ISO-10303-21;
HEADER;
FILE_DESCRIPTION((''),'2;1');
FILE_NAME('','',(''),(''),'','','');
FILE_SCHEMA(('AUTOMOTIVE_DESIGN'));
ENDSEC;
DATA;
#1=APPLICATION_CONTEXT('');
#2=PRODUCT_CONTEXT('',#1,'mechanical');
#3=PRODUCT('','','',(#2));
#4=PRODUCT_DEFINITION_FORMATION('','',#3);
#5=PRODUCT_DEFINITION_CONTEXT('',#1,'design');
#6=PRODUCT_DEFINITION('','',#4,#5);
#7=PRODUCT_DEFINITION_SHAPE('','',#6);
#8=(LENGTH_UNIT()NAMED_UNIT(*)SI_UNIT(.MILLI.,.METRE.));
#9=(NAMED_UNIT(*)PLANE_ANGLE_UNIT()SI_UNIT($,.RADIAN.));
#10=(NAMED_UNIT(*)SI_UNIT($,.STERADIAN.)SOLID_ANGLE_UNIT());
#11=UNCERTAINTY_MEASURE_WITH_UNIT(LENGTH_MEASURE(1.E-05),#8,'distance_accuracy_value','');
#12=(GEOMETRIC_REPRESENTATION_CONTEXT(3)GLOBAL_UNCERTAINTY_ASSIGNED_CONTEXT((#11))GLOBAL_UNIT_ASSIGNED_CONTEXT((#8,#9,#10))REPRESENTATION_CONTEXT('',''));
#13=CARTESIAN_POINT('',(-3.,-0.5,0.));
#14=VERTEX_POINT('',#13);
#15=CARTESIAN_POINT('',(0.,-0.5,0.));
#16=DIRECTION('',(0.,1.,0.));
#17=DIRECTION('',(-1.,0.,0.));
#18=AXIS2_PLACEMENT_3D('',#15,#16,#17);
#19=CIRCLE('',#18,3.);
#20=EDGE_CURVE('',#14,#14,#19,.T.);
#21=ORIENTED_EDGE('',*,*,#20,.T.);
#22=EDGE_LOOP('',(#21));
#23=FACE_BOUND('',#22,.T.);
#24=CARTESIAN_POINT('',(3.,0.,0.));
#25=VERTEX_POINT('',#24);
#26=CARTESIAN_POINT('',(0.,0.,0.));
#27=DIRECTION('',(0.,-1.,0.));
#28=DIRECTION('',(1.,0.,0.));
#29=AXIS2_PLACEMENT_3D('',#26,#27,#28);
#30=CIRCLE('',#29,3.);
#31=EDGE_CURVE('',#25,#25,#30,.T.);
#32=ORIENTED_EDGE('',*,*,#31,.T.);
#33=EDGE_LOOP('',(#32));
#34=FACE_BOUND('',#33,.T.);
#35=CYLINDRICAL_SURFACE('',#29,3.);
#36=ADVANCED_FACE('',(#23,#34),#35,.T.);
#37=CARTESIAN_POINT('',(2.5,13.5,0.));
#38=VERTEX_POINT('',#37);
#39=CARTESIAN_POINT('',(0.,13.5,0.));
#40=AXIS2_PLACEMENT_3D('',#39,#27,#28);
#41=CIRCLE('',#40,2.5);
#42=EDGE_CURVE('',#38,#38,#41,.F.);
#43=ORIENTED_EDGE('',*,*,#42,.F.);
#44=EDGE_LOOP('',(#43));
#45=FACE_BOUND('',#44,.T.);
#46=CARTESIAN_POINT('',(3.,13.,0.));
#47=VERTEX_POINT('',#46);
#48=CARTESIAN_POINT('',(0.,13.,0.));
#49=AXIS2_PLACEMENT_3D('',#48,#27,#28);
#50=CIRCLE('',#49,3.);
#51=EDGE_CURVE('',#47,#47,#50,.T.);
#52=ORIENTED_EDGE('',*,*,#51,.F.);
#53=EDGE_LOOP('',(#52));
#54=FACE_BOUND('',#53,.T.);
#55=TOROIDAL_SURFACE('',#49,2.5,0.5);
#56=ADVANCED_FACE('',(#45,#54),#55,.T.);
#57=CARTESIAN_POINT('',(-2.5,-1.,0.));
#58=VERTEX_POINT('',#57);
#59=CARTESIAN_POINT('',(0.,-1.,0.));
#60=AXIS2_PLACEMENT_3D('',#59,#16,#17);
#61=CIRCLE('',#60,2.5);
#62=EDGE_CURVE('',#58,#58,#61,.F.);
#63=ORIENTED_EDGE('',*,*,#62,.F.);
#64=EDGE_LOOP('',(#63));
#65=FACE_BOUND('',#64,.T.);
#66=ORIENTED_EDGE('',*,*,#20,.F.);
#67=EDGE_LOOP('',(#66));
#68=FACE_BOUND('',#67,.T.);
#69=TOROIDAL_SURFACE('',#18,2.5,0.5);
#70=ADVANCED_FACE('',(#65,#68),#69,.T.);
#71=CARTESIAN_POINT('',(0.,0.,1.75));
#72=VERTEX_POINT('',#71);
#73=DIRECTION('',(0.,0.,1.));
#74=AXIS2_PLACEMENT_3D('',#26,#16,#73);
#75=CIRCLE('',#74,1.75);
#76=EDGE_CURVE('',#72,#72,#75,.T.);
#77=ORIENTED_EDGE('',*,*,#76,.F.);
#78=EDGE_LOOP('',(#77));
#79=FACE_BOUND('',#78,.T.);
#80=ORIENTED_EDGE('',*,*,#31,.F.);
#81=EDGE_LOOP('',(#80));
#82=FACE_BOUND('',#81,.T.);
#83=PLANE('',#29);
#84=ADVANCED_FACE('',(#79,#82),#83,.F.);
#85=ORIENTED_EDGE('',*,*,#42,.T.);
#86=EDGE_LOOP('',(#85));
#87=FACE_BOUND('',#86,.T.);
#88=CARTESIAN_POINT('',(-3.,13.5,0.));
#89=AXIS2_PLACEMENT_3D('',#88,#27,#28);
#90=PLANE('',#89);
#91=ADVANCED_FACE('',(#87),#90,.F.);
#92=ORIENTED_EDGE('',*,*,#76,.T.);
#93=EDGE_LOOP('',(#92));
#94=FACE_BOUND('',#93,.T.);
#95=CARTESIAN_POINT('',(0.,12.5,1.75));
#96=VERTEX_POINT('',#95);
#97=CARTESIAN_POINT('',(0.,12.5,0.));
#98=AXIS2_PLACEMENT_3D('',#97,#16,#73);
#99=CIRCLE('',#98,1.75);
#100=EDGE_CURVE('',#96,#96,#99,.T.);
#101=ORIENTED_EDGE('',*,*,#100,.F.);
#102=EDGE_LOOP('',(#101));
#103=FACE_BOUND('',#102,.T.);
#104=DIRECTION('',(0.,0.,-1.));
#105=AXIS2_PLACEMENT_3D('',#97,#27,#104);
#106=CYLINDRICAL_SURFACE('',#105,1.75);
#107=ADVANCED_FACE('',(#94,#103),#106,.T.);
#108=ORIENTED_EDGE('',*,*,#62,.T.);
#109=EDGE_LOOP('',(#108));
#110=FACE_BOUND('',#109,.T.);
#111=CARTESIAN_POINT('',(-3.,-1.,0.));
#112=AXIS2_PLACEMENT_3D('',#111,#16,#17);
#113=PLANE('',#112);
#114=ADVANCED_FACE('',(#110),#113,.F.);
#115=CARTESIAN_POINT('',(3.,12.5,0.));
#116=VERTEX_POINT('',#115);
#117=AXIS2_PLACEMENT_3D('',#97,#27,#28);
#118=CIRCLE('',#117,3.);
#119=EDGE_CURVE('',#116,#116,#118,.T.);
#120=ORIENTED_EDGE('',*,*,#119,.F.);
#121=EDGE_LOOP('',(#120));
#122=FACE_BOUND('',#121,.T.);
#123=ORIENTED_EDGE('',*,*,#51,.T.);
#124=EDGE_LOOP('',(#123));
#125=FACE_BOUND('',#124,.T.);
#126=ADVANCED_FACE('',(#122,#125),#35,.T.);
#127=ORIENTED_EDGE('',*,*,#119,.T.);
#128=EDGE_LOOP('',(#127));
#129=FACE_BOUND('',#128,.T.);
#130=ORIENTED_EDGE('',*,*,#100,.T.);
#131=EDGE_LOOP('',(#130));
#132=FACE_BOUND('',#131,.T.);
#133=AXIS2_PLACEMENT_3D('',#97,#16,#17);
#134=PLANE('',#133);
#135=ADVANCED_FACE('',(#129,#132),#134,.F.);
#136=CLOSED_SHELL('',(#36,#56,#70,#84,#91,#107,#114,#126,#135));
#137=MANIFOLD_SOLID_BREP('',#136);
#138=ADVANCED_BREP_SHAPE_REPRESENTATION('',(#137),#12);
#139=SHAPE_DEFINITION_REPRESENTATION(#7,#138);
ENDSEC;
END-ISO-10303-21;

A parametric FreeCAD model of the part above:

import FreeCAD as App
import Part
import Sketcher
from FreeCAD import Vector


def edges_at(feature, points):
    """Names of the edges that pass closest to the given points."""
    edges = feature.Shape.Edges
    near = lambda p: min(range(len(edges)), key=lambda i: edges[i].distToShape(Part.Vertex(*p))[0])
    return sorted({f"Edge{near(p) + 1}" for p in points})

doc = App.newDocument("Part")
body = doc.addObject("PartDesign::Body", "Body")

sketch1 = doc.addObject("Sketcher::SketchObject", "Sketch")
body.addObject(sketch1)
sketch1.AttachmentSupport = (doc.XZ_Plane, [""])
sketch1.MapMode = "FlatFace"
sketch1.addGeometry(Part.Circle(Vector(0, 0, 0), Vector(0, 0, 1), 1.75), False)
sketch1.addConstraint(Sketcher.Constraint("Coincident", 0, 3, -1, 1))
sketch1.addConstraint(Sketcher.Constraint("Diameter", 0, 3.5))
pad1 = doc.addObject("PartDesign::Pad", "Pad")
body.addObject(pad1)
pad1.Profile = sketch1
pad1.Length = 12.5
pad1.Reversed = True

sketch2 = doc.addObject("Sketcher::SketchObject", "Sketch001")
body.addObject(sketch2)
sketch2.AttachmentSupport = (doc.XY_Plane, [""])
sketch2.MapMode = "FlatFace"
sketch2.addGeometry(Part.LineSegment(Vector(-3, 13.5, 0), Vector(-3, 12.5, 0)), False)
sketch2.addGeometry(Part.LineSegment(Vector(-3, 12.5, 0), Vector(0, 12.5, 0)), False)
sketch2.addGeometry(Part.LineSegment(Vector(0, 12.5, 0), Vector(0, 13.5, 0)), False)
sketch2.addGeometry(Part.LineSegment(Vector(0, 13.5, 0), Vector(-3, 13.5, 0)), False)
sketch2.addGeometry(Part.LineSegment(Vector(-3, 0, 0), Vector(-3, -1, 0)), False)
sketch2.addGeometry(Part.LineSegment(Vector(-3, -1, 0), Vector(0, -1, 0)), False)
sketch2.addGeometry(Part.LineSegment(Vector(0, -1, 0), Vector(0, 0, 0)), False)
sketch2.addGeometry(Part.LineSegment(Vector(0, 0, 0), Vector(-3, 0, 0)), False)
sketch2.addConstraint(Sketcher.Constraint("Coincident", 0, 2, 1, 1))
sketch2.addConstraint(Sketcher.Constraint("Coincident", 1, 2, 2, 1))
sketch2.addConstraint(Sketcher.Constraint("Coincident", 2, 2, 3, 1))
sketch2.addConstraint(Sketcher.Constraint("Coincident", 3, 2, 0, 1))
sketch2.addConstraint(Sketcher.Constraint("Coincident", 4, 2, 5, 1))
sketch2.addConstraint(Sketcher.Constraint("Coincident", 5, 2, 6, 1))
sketch2.addConstraint(Sketcher.Constraint("Coincident", 6, 2, 7, 1))
sketch2.addConstraint(Sketcher.Constraint("Coincident", 7, 2, 4, 1))
sketch2.addConstraint(Sketcher.Constraint("Vertical", 0))
sketch2.addConstraint(Sketcher.Constraint("Horizontal", 1))
sketch2.addConstraint(Sketcher.Constraint("Vertical", 2))
sketch2.addConstraint(Sketcher.Constraint("Horizontal", 3))
sketch2.addConstraint(Sketcher.Constraint("Vertical", 4))
sketch2.addConstraint(Sketcher.Constraint("Horizontal", 5))
sketch2.addConstraint(Sketcher.Constraint("Vertical", 6))
sketch2.addConstraint(Sketcher.Constraint("Horizontal", 7))
sketch2.addConstraint(Sketcher.Constraint("Coincident", 6, 2, -1, 1))
sketch2.addConstraint(Sketcher.Constraint("PointOnObject", 1, 2, -2))
sketch2.addConstraint(Sketcher.Constraint("Vertical", 3, 2, 4, 2))
sketch2.addConstraint(Sketcher.Constraint("Equal", 2, 4))
sketch2.addConstraint(Sketcher.Constraint("DistanceX", 1, 1, 1, 2, 3.0))
sketch2.addConstraint(Sketcher.Constraint("DistanceY", 0, 2, 0, 1, 1.0))
sketch2.addConstraint(Sketcher.Constraint("DistanceY", -1, 1, 0, 2, 12.5))
revolution = doc.addObject("PartDesign::Revolution", "Revolution")
body.addObject(revolution)
revolution.Profile = sketch2
revolution.ReferenceAxis = (sketch2, ["V_Axis"])
revolution.Angle = 360
doc.recompute()

fillet = doc.addObject("PartDesign::Fillet", "Fillet")
body.addObject(fillet)
fillet.Base = (revolution, edges_at(revolution, [(-3, -1, 0), (-3, 13.5, 0)]))
fillet.Radius = 0.5

doc.recompute()
